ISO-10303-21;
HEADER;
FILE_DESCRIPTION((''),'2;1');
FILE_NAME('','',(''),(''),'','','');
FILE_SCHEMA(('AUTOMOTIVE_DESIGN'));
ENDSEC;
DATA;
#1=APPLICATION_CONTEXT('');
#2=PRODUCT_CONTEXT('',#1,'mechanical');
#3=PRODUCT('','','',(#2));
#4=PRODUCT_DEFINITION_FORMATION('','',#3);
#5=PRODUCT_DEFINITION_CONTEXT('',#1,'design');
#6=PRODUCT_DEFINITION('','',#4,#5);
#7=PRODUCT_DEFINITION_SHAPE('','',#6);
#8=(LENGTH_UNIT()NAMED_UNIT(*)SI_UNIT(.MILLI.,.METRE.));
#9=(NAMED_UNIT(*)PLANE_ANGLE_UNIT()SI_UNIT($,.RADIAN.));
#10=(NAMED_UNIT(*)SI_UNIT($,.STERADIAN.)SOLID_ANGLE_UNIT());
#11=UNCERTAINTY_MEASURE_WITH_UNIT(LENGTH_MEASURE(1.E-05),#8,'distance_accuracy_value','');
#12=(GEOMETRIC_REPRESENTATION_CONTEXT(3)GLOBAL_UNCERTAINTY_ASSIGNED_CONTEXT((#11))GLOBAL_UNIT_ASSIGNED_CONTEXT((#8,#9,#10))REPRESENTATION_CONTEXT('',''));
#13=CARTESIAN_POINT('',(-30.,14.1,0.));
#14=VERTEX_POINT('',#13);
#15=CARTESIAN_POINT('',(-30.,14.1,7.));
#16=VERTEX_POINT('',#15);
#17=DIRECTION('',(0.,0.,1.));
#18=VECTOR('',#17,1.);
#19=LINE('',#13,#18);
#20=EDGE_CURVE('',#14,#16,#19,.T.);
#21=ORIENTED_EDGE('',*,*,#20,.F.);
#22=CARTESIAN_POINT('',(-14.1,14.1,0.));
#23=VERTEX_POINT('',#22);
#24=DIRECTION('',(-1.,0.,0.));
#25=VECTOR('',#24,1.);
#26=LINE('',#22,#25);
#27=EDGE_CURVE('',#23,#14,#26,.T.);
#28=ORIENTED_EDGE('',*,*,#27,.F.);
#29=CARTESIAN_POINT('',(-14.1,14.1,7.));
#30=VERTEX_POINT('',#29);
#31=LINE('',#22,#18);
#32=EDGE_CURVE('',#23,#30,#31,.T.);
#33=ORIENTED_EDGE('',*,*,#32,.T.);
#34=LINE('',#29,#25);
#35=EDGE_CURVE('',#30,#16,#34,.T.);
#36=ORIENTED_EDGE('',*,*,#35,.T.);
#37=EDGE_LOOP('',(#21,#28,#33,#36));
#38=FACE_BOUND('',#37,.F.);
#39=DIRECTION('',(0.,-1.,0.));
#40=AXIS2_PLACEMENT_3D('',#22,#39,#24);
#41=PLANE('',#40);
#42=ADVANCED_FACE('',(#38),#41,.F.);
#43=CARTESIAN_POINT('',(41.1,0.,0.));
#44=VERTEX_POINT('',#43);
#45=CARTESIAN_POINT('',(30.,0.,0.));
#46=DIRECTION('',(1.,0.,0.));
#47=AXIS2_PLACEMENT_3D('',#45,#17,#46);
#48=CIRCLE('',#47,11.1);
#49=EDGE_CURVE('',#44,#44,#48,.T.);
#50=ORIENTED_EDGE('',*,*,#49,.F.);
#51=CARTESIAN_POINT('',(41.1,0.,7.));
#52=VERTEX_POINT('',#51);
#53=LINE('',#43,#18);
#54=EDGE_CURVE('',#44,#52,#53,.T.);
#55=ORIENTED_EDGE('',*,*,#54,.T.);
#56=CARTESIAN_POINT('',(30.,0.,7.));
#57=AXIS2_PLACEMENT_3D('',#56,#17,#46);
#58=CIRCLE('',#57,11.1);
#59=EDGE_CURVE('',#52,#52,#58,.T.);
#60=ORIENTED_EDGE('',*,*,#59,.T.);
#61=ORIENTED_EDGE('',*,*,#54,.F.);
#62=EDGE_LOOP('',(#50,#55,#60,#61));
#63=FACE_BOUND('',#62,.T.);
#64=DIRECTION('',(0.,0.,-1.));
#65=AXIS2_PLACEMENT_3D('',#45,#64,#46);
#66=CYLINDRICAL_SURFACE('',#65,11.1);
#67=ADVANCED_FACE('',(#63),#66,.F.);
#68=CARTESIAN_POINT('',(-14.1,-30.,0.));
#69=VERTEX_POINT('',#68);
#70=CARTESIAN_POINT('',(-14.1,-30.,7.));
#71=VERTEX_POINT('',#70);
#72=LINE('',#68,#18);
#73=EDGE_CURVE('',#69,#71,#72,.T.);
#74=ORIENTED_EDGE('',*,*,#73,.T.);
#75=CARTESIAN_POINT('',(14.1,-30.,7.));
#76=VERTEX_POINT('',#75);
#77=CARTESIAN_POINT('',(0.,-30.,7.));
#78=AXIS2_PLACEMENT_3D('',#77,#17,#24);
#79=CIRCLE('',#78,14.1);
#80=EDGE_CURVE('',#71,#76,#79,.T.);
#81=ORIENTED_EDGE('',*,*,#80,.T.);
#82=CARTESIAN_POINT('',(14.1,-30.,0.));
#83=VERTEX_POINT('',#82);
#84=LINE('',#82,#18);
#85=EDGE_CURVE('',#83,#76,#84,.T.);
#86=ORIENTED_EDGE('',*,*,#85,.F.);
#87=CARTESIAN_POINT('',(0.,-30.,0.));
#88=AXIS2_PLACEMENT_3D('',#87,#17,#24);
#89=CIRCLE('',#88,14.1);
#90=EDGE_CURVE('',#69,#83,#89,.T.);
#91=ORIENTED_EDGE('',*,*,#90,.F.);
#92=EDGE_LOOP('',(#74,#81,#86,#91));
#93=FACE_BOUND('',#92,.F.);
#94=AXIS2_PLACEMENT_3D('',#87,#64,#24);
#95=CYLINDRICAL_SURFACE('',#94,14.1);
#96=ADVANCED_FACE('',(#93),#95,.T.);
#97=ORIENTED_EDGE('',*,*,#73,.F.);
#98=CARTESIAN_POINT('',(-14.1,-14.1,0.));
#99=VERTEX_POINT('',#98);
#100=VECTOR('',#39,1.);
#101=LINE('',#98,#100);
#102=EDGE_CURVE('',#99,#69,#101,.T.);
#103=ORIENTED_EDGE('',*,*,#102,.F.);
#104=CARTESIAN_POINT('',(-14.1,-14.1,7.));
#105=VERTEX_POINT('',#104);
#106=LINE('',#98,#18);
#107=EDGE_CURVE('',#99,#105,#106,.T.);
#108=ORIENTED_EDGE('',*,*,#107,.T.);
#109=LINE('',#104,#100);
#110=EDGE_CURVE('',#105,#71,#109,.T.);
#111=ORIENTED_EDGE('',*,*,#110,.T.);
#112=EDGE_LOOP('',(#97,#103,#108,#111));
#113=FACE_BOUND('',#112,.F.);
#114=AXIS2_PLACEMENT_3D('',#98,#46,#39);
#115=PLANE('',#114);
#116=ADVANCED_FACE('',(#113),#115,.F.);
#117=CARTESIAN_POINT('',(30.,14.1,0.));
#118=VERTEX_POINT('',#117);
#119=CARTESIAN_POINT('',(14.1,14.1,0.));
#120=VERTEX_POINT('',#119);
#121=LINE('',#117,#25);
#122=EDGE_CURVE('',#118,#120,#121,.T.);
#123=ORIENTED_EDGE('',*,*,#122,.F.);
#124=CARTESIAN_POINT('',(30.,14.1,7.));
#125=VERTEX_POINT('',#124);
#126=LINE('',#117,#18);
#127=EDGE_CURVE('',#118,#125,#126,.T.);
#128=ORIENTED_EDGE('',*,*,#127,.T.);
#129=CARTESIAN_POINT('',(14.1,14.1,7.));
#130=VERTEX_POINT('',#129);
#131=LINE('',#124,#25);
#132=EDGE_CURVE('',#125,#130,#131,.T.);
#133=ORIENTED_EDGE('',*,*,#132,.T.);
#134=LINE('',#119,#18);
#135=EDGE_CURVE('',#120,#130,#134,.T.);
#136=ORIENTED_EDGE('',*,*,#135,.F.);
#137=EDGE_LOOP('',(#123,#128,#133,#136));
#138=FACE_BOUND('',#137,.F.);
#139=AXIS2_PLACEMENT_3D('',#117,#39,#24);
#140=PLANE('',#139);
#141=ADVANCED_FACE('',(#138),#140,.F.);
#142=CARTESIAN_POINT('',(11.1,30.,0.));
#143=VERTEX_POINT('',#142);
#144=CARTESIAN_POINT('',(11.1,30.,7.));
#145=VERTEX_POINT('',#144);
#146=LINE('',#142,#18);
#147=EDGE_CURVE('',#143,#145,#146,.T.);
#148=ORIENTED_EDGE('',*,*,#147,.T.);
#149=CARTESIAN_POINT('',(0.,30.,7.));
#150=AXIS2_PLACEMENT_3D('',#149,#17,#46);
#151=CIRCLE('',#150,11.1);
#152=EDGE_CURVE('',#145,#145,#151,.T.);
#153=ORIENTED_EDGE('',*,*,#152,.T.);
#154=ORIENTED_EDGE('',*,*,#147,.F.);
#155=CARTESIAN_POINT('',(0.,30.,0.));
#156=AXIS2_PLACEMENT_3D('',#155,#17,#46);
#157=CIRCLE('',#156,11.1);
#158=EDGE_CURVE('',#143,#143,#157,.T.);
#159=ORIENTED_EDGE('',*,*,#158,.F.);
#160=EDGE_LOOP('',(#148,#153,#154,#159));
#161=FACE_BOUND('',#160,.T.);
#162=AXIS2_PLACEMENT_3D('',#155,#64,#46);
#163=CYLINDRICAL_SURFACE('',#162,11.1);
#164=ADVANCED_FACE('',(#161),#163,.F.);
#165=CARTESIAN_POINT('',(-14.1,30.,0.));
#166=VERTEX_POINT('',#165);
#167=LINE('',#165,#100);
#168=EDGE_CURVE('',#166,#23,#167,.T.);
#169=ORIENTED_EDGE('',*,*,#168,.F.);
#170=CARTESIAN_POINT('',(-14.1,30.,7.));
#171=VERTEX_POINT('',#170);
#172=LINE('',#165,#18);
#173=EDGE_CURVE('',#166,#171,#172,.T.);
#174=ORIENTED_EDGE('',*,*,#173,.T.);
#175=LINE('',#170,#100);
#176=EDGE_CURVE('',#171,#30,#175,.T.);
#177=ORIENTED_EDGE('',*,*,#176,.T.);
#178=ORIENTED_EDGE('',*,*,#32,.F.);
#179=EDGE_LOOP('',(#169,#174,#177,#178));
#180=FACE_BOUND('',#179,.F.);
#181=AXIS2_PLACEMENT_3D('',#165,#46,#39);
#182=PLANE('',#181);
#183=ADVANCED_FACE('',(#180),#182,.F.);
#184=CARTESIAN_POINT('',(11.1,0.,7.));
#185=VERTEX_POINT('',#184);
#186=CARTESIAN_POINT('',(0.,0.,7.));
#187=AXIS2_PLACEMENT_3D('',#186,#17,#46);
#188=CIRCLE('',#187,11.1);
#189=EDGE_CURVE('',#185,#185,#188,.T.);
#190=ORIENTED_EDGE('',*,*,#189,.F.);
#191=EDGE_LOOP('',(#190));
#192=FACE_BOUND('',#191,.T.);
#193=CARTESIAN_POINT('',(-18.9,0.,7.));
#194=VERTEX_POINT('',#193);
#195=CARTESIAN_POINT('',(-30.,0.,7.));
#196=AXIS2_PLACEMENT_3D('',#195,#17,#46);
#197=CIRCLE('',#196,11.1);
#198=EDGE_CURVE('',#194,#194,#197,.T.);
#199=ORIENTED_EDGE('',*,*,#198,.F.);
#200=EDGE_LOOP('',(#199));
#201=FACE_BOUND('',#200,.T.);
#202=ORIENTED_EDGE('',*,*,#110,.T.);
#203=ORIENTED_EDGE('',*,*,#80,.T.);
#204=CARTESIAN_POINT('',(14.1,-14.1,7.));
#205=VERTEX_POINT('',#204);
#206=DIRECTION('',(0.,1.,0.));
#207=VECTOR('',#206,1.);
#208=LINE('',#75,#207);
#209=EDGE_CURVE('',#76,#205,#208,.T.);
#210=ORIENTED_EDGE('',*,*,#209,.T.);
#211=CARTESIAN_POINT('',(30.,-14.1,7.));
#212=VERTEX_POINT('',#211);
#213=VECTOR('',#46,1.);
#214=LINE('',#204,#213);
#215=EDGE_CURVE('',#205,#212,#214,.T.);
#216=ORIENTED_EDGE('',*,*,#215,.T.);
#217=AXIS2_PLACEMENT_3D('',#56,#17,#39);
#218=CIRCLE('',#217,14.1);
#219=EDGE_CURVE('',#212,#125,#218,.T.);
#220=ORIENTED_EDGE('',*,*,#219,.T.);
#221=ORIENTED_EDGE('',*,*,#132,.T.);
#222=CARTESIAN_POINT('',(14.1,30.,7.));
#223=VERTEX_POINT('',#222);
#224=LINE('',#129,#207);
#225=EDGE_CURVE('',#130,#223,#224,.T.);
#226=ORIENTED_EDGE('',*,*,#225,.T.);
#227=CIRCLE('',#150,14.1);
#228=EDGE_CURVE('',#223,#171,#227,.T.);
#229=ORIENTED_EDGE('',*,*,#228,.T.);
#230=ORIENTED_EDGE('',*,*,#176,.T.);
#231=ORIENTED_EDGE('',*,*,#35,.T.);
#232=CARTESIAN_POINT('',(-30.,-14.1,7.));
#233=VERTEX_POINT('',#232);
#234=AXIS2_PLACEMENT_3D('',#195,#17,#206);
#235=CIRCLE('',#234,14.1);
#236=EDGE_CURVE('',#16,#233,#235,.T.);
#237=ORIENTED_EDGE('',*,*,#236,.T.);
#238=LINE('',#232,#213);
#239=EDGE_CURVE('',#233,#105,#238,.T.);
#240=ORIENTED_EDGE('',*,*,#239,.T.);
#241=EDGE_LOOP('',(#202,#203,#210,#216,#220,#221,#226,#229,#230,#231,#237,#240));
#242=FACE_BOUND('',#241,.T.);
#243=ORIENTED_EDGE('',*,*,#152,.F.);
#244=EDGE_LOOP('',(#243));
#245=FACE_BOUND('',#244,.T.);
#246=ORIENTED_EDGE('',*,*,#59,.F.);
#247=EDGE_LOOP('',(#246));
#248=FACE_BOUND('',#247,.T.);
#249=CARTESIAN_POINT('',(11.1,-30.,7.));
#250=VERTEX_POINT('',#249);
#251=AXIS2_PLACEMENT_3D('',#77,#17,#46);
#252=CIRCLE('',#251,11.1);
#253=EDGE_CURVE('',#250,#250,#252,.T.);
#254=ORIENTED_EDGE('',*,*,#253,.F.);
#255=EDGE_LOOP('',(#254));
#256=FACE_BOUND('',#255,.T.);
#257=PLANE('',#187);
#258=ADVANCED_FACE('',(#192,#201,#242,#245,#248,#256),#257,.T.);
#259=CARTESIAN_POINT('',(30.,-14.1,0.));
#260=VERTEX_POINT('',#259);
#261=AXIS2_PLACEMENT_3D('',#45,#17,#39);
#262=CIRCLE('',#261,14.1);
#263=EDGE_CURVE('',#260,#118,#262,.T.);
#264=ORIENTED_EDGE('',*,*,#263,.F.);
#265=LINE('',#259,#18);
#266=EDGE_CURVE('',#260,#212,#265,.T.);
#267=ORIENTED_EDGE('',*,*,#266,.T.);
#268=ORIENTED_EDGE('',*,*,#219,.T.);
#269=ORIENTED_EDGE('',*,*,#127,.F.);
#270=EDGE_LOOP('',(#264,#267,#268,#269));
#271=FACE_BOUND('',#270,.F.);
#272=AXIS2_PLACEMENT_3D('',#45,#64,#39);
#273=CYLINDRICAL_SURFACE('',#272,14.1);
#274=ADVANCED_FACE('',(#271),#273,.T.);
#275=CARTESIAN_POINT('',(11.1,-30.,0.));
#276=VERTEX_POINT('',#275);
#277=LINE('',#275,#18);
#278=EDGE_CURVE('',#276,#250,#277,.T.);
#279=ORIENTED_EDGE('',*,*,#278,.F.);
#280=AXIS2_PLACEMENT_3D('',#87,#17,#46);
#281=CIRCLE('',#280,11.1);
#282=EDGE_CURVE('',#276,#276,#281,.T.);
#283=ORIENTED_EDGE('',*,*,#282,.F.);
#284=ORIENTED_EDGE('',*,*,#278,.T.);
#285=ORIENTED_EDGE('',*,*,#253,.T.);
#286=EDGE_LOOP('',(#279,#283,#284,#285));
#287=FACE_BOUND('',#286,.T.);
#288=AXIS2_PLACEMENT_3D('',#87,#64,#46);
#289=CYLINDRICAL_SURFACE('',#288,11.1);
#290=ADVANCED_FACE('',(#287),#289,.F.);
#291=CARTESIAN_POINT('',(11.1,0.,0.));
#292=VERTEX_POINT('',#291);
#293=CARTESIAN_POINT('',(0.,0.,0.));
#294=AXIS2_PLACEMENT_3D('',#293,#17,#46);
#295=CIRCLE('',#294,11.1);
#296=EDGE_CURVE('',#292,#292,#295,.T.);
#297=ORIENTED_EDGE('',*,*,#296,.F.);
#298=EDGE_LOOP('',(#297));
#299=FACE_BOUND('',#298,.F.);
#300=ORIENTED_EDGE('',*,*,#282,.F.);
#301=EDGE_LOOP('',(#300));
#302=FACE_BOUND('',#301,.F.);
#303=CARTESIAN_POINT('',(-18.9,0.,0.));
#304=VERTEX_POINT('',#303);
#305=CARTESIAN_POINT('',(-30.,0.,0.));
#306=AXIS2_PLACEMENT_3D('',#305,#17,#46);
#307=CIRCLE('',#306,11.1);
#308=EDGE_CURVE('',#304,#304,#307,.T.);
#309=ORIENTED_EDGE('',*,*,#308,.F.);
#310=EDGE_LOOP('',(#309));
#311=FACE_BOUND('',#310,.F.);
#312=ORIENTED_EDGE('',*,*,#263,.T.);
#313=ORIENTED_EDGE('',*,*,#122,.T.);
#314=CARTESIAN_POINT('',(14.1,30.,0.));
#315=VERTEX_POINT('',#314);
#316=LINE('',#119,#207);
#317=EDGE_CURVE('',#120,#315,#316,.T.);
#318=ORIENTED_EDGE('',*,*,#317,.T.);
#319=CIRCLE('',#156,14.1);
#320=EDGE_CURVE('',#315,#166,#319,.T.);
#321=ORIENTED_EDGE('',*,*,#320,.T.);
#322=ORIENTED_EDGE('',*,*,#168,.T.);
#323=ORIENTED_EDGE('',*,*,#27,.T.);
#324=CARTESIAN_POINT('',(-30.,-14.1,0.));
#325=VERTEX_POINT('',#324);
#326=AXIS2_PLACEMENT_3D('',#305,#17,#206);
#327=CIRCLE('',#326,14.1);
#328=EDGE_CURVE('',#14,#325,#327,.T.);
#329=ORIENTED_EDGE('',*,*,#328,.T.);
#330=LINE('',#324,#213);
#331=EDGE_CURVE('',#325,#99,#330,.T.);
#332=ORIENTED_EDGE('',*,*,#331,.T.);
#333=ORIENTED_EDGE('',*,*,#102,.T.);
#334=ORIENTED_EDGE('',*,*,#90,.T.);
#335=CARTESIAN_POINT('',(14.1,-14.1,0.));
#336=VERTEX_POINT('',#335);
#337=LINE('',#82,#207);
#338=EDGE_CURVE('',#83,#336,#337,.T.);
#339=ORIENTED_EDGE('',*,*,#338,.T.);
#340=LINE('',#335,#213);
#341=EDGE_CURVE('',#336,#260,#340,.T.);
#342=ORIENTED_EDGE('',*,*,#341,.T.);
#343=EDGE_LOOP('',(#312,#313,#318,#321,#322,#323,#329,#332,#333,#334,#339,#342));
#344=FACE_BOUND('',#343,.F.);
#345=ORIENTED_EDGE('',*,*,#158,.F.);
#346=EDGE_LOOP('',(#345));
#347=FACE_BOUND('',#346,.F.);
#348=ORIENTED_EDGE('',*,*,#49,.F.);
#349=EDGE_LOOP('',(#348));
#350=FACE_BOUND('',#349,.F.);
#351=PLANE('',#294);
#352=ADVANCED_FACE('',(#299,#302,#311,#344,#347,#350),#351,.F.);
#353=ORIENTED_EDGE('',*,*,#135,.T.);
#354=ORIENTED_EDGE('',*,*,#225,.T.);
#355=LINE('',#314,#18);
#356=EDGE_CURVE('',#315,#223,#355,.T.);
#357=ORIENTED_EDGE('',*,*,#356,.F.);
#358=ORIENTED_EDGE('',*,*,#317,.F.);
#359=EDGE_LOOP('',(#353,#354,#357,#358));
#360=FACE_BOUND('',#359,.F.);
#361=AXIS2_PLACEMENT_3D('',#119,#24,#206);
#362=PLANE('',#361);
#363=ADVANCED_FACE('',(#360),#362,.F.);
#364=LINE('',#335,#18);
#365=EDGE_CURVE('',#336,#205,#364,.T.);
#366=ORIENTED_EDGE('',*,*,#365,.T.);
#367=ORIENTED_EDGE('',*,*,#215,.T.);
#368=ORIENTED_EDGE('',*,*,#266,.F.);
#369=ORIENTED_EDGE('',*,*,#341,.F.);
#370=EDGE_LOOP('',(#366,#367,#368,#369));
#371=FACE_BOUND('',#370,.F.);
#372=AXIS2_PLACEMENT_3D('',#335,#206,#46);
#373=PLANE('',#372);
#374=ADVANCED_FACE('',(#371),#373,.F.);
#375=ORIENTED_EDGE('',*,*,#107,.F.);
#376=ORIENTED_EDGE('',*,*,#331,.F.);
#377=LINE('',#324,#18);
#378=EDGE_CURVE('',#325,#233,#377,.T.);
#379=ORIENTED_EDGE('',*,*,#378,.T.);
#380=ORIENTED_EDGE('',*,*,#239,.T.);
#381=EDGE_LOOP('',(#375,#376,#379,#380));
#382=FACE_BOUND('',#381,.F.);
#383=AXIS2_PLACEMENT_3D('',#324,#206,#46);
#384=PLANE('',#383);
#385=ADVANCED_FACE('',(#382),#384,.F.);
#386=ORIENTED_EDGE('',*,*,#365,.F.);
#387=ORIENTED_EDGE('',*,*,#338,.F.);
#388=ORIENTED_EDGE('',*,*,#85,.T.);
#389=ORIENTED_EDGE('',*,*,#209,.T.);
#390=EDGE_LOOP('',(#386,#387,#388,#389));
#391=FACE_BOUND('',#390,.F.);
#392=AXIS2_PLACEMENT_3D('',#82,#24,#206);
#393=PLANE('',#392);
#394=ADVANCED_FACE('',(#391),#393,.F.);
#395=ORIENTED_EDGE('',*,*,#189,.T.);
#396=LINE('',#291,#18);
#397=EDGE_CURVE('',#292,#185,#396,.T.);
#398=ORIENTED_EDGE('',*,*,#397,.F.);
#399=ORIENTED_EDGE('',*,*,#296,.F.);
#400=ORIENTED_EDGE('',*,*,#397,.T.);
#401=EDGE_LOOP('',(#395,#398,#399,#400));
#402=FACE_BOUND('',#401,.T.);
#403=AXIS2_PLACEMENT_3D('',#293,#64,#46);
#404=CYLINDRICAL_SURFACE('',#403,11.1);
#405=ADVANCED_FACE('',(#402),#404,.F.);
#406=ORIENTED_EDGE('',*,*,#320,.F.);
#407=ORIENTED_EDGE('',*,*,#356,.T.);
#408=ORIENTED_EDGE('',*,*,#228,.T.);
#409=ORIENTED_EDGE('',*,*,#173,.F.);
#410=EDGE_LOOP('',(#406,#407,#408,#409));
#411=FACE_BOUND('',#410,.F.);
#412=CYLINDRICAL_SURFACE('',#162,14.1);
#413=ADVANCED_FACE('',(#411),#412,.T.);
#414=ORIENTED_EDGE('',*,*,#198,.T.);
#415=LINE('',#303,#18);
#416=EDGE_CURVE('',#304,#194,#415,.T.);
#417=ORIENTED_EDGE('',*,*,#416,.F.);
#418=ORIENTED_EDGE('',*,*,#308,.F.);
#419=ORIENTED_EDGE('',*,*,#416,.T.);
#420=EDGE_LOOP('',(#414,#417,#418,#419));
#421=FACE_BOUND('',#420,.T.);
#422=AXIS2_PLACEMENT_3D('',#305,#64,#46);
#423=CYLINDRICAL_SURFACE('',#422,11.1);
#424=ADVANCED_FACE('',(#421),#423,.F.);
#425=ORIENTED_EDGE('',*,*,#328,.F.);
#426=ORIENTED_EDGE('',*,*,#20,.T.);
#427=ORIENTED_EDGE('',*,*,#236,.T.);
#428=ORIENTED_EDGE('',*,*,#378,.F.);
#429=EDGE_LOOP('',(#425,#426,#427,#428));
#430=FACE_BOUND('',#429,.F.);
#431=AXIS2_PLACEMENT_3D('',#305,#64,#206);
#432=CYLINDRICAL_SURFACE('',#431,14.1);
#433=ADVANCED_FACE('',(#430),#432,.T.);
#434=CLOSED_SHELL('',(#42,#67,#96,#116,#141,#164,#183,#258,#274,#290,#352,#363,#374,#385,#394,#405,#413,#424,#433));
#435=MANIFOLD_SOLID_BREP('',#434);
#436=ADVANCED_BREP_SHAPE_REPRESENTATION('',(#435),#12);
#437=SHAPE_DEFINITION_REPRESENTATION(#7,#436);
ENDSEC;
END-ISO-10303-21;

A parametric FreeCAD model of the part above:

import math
import FreeCAD as App
import Part
import Sketcher

V = App.Vector
Q = App.Units.Quantity

doc = App.newDocument("Part")
body = doc.addObject("PartDesign::Body", "Body")

# Sketch on XY plane
sketch1 = body.newObject("Sketcher::SketchObject", "Sketch")
sketch1.AttachmentSupport = (doc.getObject("XY_Plane"), [""])
sketch1.MapMode = "FlatFace"
sketch1.addGeometry([
    Part.LineSegment(V(14, 14, 0), V(14, 30, 0)),  # 0
    Part.ArcOfCircle(Part.Circle(V(0, 30, 0), V(0, 0, 1), 14), math.radians(0), math.radians(180)),  # 1
    Part.LineSegment(V(-14, 30, 0), V(-14, 14, 0)),  # 2
    Part.LineSegment(V(-14, 14, 0), V(-30, 14, 0)),  # 3
    Part.ArcOfCircle(Part.Circle(V(-30, 0, 0), V(0, 0, 1), 14), math.radians(90), math.radians(270)),  # 4
    Part.LineSegment(V(-30, -14, 0), V(-14, -14, 0)),  # 5
    Part.LineSegment(V(-14, -14, 0), V(-14, -30, 0)),  # 6
    Part.ArcOfCircle(Part.Circle(V(0, -30, 0), V(0, 0, 1), 14), math.radians(180), math.radians(360)),  # 7
    Part.LineSegment(V(14, -30, 0), V(14, -14, 0)),  # 8
    Part.LineSegment(V(14, -14, 0), V(30, -14, 0)),  # 9
    Part.ArcOfCircle(Part.Circle(V(30, 0, 0), V(0, 0, 1), 14), math.radians(-90), math.radians(90)),  # 10
    Part.LineSegment(V(30, 14, 0), V(14, 14, 0)),  # 11
    Part.Circle(V(0, -30, 0), V(0, 0, 1), 11),  # 12
    Part.Circle(V(-30, 0, 0), V(0, 0, 1), 11),  # 13
    Part.Circle(V(0, 0, 0), V(0, 0, 1), 11),  # 14
    Part.Circle(V(30, 0, 0), V(0, 0, 1), 11),  # 15
    Part.Circle(V(0, 30, 0), V(0, 0, 1), 11),  # 16
], False)
sketch1.addConstraint([
    Sketcher.Constraint("Tangent", 0, 2, 1, 1),
    Sketcher.Constraint("Tangent", 1, 2, 2, 1),
    Sketcher.Constraint("Coincident", 2, 2, 3, 1),
    Sketcher.Constraint("Tangent", 3, 2, 4, 1),
    Sketcher.Constraint("Tangent", 4, 2, 5, 1),
    Sketcher.Constraint("Coincident", 5, 2, 6, 1),
    Sketcher.Constraint("Tangent", 6, 2, 7, 1),
    Sketcher.Constraint("Tangent", 7, 2, 8, 1),
    Sketcher.Constraint("Coincident", 8, 2, 9, 1),
    Sketcher.Constraint("Tangent", 9, 2, 10, 1),
    Sketcher.Constraint("Tangent", 10, 2, 11, 1),
    Sketcher.Constraint("Coincident", 11, 2, 0, 1),
    Sketcher.Constraint("Vertical", 0),
    Sketcher.Constraint("Vertical", 2),
    Sketcher.Constraint("Horizontal", 3),
    Sketcher.Constraint("Horizontal", 5),
    Sketcher.Constraint("Vertical", 6),
    Sketcher.Constraint("Vertical", 8),
    Sketcher.Constraint("Horizontal", 9),
    Sketcher.Constraint("Horizontal", 11),
    Sketcher.Constraint("Coincident", 14, 3, -1, 1),
    Sketcher.Constraint("Coincident", 12, 3, 7, 3),
    Sketcher.Constraint("Coincident", 13, 3, 4, 3),
    Sketcher.Constraint("Coincident", 15, 3, 10, 3),
    Sketcher.Constraint("Coincident", 16, 3, 1, 3),
    Sketcher.Constraint("Equal", 1, 4),
    Sketcher.Constraint("Equal", 4, 7),
    Sketcher.Constraint("Equal", 7, 10),
    Sketcher.Constraint("Equal", 12, 13),
    Sketcher.Constraint("Equal", 13, 14),
    Sketcher.Constraint("Equal", 14, 15),
    Sketcher.Constraint("Equal", 15, 16),
    Sketcher.Constraint("Symmetric", 1, 3, 7, 3, -1, 1),
    Sketcher.Constraint("Symmetric", 4, 3, 10, 3, -1, 1),
    Sketcher.Constraint("Symmetric", 5, 2, 8, 2, -2),
    Sketcher.Constraint("Equal", 11, 0),
    Sketcher.Constraint("Diameter", 12, Q("22.2 mm")),
    Sketcher.Constraint("Radius", 1, Q("14.1 mm")),
    Sketcher.Constraint("DistanceX", 3, 2, 3, 1, Q("15.9 mm")),
])
pad1 = body.newObject("PartDesign::Pad", "Pad")
pad1.Profile = sketch1
pad1.Length = 7

doc.recompute()
